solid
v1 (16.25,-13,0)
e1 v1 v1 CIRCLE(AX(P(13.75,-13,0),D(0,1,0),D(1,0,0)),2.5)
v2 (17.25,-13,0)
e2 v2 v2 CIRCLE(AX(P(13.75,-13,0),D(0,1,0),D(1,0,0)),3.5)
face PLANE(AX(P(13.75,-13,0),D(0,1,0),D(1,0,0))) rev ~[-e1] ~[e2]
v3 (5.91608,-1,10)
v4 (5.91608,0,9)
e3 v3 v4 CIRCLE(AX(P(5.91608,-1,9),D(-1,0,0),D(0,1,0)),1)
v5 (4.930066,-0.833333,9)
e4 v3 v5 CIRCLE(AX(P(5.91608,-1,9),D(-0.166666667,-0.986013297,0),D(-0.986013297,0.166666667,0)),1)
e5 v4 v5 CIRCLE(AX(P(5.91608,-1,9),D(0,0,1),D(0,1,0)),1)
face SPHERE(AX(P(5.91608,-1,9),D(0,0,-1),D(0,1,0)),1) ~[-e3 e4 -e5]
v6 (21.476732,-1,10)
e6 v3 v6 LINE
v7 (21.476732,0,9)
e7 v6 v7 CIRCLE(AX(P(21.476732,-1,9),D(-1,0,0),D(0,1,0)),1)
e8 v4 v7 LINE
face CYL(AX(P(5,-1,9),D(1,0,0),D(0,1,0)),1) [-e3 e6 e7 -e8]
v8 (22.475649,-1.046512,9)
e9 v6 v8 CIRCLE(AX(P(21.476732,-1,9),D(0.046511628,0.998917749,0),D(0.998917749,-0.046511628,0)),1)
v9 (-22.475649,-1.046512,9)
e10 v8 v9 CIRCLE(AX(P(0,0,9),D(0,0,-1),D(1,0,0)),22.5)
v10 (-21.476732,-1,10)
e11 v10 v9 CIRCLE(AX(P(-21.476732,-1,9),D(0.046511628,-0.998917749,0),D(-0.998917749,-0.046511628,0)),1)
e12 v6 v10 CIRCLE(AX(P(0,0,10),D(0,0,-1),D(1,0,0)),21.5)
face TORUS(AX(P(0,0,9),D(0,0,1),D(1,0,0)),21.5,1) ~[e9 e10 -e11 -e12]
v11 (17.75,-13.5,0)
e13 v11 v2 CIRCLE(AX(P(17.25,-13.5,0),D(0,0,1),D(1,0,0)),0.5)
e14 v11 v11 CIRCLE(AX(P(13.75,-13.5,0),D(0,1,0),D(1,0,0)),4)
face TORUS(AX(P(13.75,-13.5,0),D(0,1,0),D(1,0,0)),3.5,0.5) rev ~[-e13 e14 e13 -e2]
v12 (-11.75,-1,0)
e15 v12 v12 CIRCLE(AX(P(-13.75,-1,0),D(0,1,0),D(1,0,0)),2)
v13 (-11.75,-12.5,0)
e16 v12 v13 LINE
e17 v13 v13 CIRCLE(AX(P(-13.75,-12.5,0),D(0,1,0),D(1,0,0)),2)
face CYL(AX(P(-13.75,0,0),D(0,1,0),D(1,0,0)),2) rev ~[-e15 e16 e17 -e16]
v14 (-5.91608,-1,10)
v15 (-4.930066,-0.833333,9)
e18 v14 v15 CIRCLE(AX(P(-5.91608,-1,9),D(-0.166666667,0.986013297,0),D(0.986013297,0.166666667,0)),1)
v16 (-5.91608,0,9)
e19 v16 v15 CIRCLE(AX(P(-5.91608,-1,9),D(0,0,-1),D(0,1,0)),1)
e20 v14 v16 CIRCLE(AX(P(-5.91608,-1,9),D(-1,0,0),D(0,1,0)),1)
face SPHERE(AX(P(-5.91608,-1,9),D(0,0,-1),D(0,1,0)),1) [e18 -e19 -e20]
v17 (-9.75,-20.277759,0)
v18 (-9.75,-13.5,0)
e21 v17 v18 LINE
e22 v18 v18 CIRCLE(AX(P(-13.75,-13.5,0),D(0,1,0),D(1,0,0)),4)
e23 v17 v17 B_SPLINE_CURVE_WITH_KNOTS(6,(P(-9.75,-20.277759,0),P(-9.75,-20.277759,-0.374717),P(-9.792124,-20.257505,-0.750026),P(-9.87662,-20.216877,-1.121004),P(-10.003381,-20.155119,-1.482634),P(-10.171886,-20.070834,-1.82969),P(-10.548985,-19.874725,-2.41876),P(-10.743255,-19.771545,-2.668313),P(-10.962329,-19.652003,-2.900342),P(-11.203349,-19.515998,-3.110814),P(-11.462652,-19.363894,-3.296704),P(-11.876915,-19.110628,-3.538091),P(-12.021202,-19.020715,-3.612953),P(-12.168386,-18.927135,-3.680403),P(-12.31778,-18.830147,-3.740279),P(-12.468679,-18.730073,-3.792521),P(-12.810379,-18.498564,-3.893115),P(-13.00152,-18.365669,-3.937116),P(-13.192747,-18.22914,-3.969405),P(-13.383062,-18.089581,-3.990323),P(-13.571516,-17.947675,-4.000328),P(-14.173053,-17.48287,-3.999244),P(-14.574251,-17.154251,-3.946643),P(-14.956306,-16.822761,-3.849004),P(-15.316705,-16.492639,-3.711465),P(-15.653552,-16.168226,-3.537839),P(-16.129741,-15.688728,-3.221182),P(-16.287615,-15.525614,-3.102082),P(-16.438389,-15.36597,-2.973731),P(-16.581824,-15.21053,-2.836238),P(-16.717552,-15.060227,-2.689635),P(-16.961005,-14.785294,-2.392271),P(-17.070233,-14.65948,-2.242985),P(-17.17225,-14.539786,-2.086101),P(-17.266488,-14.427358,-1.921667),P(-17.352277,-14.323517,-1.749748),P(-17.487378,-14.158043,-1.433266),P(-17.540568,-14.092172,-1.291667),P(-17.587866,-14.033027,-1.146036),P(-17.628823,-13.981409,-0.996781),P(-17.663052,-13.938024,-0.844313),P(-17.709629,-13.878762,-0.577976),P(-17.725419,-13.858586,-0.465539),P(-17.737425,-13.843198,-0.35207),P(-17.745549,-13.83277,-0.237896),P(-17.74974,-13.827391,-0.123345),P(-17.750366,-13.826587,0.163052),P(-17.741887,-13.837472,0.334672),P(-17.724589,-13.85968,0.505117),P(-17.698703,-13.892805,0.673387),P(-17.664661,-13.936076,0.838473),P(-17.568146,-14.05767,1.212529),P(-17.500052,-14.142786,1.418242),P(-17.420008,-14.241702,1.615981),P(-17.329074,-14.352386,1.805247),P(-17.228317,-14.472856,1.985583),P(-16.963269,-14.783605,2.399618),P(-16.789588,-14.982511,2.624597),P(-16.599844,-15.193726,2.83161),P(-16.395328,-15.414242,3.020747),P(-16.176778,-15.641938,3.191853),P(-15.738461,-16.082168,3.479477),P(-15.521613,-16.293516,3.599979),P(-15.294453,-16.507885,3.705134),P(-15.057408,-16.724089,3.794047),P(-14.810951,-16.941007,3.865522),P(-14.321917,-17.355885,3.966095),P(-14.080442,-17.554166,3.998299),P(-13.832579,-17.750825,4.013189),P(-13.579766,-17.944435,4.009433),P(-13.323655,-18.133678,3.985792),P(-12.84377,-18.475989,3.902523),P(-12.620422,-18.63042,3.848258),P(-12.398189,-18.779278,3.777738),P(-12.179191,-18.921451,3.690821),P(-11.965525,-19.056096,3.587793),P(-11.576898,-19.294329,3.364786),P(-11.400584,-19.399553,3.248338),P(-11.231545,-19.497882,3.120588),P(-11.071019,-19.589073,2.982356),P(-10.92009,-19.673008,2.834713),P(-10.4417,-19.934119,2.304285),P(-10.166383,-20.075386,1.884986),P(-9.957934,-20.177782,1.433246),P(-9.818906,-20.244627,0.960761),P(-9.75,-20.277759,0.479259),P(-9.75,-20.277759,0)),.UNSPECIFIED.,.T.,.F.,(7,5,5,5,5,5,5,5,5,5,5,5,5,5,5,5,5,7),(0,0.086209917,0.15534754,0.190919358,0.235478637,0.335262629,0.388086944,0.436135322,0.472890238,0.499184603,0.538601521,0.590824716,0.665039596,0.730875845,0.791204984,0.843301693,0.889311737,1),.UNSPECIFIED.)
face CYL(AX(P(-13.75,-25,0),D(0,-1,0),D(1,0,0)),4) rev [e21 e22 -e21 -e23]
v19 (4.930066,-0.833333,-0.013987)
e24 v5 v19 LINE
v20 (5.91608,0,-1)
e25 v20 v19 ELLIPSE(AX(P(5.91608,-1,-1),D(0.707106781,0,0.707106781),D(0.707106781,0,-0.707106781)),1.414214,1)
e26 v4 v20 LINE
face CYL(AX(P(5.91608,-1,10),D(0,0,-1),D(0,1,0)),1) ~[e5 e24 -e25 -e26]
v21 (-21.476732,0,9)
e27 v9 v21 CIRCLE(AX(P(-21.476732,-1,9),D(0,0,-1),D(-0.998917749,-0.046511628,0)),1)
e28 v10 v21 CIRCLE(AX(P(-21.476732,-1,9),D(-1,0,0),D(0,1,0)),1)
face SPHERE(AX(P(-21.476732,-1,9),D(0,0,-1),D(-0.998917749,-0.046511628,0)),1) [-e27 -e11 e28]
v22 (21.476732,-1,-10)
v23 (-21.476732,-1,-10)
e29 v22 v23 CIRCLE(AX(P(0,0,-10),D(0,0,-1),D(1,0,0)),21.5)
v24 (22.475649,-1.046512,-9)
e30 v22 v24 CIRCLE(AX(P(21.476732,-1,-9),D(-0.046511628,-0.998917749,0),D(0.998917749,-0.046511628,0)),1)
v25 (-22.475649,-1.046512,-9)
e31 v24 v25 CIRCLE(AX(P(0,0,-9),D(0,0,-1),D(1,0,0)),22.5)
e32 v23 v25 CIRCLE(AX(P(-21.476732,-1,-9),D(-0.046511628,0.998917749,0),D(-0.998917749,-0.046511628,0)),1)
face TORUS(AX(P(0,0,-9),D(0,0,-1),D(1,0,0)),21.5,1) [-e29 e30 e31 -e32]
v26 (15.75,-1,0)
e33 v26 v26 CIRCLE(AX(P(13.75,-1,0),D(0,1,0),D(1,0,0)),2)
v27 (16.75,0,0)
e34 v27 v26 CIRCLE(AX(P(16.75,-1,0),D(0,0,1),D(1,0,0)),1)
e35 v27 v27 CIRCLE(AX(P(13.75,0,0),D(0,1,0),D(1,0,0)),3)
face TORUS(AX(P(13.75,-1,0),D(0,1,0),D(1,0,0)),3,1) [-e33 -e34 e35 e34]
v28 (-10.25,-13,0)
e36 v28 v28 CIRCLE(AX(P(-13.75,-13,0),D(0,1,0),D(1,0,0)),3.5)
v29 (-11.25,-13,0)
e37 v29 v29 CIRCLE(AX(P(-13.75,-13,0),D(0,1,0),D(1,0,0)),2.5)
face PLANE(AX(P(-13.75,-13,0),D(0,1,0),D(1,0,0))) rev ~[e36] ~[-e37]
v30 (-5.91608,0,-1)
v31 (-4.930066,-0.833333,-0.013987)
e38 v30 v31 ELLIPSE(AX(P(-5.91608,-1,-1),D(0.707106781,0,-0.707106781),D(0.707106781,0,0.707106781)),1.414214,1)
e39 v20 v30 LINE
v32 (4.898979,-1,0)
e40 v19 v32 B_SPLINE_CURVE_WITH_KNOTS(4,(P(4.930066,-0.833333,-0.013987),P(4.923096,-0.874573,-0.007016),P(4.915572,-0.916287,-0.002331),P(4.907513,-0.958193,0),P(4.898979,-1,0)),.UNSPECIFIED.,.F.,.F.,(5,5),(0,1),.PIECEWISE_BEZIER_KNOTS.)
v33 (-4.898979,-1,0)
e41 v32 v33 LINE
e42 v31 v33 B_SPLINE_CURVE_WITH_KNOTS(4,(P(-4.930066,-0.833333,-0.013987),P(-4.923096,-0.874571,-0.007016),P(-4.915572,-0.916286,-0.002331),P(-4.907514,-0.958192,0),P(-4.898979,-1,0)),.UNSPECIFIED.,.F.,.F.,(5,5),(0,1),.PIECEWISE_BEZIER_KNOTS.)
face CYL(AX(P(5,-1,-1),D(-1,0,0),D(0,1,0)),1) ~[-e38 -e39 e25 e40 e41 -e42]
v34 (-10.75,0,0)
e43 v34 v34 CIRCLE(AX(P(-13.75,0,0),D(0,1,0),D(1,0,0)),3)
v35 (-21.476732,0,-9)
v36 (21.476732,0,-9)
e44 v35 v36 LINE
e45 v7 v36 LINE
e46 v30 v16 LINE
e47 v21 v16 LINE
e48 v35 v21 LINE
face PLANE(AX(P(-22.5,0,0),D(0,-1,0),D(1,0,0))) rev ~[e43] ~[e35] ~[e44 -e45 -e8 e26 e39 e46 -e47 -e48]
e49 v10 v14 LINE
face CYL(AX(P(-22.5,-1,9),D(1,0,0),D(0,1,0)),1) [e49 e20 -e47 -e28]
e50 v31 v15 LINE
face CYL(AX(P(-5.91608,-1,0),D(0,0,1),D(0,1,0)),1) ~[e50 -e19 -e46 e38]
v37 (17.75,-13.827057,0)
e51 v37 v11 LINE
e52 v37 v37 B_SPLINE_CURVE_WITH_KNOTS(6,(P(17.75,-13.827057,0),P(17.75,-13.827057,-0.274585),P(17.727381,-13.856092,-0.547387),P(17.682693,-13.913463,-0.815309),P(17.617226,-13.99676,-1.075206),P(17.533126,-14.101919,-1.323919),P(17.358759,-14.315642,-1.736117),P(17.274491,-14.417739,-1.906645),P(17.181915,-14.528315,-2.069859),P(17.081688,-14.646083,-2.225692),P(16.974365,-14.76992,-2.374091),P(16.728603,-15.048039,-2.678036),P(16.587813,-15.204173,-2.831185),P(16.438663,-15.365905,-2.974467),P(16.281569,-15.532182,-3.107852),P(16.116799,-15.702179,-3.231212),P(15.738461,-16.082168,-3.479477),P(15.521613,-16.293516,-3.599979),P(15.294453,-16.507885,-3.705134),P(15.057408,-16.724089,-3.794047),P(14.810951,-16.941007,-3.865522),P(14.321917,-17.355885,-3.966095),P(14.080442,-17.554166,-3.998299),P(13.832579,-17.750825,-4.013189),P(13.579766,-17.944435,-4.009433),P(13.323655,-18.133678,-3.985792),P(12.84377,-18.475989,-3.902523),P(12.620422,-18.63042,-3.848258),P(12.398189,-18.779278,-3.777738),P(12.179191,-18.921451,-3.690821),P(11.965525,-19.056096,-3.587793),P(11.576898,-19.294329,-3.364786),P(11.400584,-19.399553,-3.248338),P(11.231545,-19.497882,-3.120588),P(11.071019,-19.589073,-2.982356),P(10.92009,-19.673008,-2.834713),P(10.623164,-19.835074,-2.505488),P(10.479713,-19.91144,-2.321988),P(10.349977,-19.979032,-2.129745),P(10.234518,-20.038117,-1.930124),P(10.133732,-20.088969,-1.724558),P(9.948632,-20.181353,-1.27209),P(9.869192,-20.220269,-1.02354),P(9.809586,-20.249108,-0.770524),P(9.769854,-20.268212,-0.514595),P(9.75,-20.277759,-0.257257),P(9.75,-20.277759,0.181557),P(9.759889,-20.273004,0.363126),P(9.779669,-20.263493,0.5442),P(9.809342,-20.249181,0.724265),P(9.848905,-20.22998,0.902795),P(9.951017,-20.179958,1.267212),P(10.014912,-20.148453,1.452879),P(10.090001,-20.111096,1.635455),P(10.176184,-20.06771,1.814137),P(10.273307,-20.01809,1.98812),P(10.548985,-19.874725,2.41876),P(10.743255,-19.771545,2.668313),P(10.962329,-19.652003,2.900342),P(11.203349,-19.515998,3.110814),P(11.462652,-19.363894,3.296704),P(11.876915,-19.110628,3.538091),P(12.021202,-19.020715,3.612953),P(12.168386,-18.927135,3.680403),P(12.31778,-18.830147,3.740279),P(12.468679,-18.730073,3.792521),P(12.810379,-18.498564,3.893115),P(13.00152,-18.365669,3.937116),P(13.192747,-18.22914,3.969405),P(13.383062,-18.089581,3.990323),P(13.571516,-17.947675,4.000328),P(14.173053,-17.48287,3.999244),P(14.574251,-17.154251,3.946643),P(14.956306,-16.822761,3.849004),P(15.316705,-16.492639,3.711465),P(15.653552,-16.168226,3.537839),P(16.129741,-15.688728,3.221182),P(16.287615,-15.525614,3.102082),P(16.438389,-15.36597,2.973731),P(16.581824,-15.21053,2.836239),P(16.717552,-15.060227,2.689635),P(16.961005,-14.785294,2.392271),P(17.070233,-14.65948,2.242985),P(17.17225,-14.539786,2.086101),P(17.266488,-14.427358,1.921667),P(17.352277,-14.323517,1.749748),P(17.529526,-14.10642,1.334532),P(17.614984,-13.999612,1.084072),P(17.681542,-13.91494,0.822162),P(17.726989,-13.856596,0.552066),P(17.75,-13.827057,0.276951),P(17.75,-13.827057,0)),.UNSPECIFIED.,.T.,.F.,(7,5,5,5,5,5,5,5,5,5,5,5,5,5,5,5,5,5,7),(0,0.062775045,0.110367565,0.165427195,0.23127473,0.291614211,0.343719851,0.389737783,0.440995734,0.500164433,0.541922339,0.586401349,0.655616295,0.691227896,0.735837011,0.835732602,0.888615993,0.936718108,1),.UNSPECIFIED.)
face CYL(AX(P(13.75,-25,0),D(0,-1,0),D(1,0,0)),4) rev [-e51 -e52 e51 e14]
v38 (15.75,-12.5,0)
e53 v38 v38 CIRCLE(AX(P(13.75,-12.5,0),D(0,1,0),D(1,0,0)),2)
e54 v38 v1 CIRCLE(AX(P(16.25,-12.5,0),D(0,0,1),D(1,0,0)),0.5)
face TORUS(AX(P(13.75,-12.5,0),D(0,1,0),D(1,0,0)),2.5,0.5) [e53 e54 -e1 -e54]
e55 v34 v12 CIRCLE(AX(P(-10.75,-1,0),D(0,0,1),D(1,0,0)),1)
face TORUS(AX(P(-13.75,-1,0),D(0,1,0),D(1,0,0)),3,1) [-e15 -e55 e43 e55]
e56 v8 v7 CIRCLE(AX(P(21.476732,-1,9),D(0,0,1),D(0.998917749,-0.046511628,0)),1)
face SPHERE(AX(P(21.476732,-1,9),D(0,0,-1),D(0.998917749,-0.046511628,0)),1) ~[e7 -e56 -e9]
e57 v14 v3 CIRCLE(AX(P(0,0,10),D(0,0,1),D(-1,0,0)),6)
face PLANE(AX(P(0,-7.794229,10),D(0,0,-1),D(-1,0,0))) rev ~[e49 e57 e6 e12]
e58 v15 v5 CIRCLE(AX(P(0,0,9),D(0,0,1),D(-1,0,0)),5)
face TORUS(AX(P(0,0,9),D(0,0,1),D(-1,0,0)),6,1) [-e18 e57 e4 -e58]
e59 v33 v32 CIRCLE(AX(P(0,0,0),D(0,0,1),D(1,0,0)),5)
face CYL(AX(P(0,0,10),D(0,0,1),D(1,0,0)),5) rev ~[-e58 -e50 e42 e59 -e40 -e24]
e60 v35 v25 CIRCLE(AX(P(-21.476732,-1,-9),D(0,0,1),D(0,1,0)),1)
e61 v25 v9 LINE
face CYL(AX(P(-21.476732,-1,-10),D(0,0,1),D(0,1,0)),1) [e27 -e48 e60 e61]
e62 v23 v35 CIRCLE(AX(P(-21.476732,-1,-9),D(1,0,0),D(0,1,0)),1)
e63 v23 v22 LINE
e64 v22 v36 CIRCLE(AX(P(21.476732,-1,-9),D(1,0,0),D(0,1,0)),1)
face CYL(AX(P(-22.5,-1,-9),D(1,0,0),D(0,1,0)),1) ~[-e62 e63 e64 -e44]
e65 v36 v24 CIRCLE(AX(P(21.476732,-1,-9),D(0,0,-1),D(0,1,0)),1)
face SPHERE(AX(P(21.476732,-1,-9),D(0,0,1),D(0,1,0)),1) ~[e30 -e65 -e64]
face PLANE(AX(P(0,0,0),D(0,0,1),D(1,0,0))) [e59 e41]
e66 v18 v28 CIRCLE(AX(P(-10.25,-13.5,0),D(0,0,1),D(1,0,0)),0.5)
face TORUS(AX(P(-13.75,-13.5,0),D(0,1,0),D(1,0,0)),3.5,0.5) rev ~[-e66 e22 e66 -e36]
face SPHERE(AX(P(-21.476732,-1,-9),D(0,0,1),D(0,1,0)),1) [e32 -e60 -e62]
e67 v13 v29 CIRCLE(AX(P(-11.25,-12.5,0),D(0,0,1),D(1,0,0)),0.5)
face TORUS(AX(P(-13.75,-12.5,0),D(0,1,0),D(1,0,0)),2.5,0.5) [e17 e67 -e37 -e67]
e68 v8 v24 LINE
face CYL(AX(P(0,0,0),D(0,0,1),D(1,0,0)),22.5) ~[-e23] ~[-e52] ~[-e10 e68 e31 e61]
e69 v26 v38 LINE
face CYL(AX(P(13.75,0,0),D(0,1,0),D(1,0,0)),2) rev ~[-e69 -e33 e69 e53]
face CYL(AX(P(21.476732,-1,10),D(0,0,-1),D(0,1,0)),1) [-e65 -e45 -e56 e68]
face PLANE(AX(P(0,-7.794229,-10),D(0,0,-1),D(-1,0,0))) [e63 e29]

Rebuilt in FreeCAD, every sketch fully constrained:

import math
import FreeCAD as App
import Part
import Sketcher

V = App.Vector


def edges_at(feature, points):
    """Names of the edges that pass closest to the given points."""
    edges = feature.Shape.Edges
    near = lambda p: min(range(len(edges)), key=lambda i: edges[i].distToShape(Part.Vertex(*p))[0])
    return sorted({f"Edge{near(p) + 1}" for p in points})

doc = App.newDocument("Part")
body = doc.addObject("PartDesign::Body", "Body")

# Sketch on XY plane
sketch1 = doc.addObject("Sketcher::SketchObject", "Sketch")
body.addObject(sketch1)
sketch1.AttachmentSupport = (doc.XY_Plane, [""])
sketch1.MapMode = "FlatFace"
sketch1.addGeometry([
    Part.LineSegment(V(22, 0, 0), V(-22, 0, 0)),
    Part.ArcOfCircle(Part.Circle(V(0, 0, 0), V(0, 0, 1), 22), math.radians(180), math.radians(360)),
], False)
sketch1.addConstraint([
    Sketcher.Constraint("Coincident", 0, 1, 1, 2),
    Sketcher.Constraint("Coincident", 1, 1, 0, 2),
    Sketcher.Constraint("Horizontal", 0),
    Sketcher.Constraint("Coincident", 1, 3, -1, 1),
    Sketcher.Constraint("PointOnObject", 0, 1, -1),
    Sketcher.Constraint("Radius", 1, 22.5),
])
pad1 = doc.addObject("PartDesign::Pad", "Pad")
body.addObject(pad1)
pad1.Profile = sketch1
pad1.Length = 20
pad1.Midplane = True

# Sketch on XY plane
sketch2 = doc.addObject("Sketcher::SketchObject", "Sketch001")
body.addObject(sketch2)
sketch2.AttachmentSupport = (doc.XY_Plane, [""])
sketch2.MapMode = "FlatFace"
sketch2.AttachmentOffset = App.Placement(V(0, 0, 10), App.Rotation())
sketch2.addGeometry(Part.Circle(V(0, 0, 0), V(0, 0, 1), 5), False)
sketch2.addConstraint([
    Sketcher.Constraint("Coincident", 0, 3, -1, 1),
    Sketcher.Constraint("Diameter", 0, 10.0),
])
pocket1 = doc.addObject("PartDesign::Pocket", "Pocket")
body.addObject(pocket1)
pocket1.Profile = sketch2
pocket1.Length = 10

# Sketch on XZ plane
sketch3 = doc.addObject("Sketcher::SketchObject", "Sketch002")
body.addObject(sketch3)
sketch3.AttachmentSupport = (doc.XZ_Plane, [""])
sketch3.MapMode = "FlatFace"
sketch3.addGeometry([
    Part.Circle(V(13.8, 0, 0), V(0, 0, 1), 2),
    Part.Circle(V(-13.8, 0, 0), V(0, 0, 1), 2),
], False)
sketch3.addConstraint([
    Sketcher.Constraint("Equal", 0, 1),
    Sketcher.Constraint("Symmetric", 0, 3, 1, 3, -1, 1),
    Sketcher.Constraint("PointOnObject", 0, 3, -1),
    Sketcher.Constraint("Diameter", 0, 4.0),
    Sketcher.Constraint("DistanceX", 1, 3, 0, 3, 27.5),
])
pocket2 = doc.addObject("PartDesign::Pocket", "Pocket001")
body.addObject(pocket2)
pocket2.Profile = sketch3
pocket2.Type = "ThroughAll"
pocket2.Reversed = True

# Sketch on XZ plane
sketch4 = doc.addObject("Sketcher::SketchObject", "Sketch003")
body.addObject(sketch4)
sketch4.AttachmentSupport = (doc.XZ_Plane, [""])
sketch4.MapMode = "FlatFace"
sketch4.AttachmentOffset = App.Placement(V(0, 0, 25), App.Rotation())
sketch4.addGeometry([
    Part.Circle(V(13.8, 0, 0), V(0, 0, 1), 4),
    Part.Circle(V(-13.8, 0, 0), V(0, 0, 1), 4),
], False)
sketch4.addConstraint([
    Sketcher.Constraint("Equal", 0, 1),
    Sketcher.Constraint("Symmetric", 0, 3, 1, 3, -1, 1),
    Sketcher.Constraint("PointOnObject", 0, 3, -1),
    Sketcher.Constraint("Diameter", 0, 8.0),
    Sketcher.Constraint("DistanceX", 1, 3, 0, 3, 27.5),
])
pocket3 = doc.addObject("PartDesign::Pocket", "Pocket002")
body.addObject(pocket3)
pocket3.Profile = sketch4
pocket3.Length = 12
doc.recompute()

fillet = doc.addObject("PartDesign::Fillet", "Fillet")
body.addObject(fillet)
fillet.Base = (pocket3, edges_at(pocket3, [
    (0, 0, 0),
    (5, 0, 5),
    (-5, 0, 5),
    (11.75, 0, 0),
    (-15.75, 0, 0),
    (0, 0, -10),
    (0, -22.5, -10),
    (-22.5, 0, 0),
    (22.5, 0, 0),
    (0, -22.5, 10),
    (13.75, 0, 10),
    (-13.75, 0, 10),
    (0, -5, 10),
]))
fillet.Radius = 1
doc.recompute()

fillet2 = doc.addObject("PartDesign::Fillet", "Fillet001")
body.addObject(fillet2)
fillet2.Base = (fillet, edges_at(fillet, [
    (9.75, -13, 0),
    (11.75, -13, 0),
    (-17.75, -13, 0),
    (-15.75, -13, 0),
]))
fillet2.Radius = 0.5

doc.recompute()
